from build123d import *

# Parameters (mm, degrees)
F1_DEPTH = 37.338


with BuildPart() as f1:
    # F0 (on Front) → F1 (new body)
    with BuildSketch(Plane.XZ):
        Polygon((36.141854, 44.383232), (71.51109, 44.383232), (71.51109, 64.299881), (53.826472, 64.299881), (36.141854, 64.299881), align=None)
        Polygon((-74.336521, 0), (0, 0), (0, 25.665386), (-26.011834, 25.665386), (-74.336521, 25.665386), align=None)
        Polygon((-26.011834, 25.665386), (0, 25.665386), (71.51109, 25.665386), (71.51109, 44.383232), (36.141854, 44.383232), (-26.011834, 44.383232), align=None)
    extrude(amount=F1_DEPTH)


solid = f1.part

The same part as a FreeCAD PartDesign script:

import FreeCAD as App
import Part
import Sketcher
Q = App.Units.Quantity


def add_polygon(sketch, points):
    """Adds a closed chain of lines whose ends are joined by coincident constraints."""
    first, n = sketch.GeometryCount, len(points)
    for a, b in zip(points, points[1:] + points[:1]):
        sketch.addGeometry(Part.LineSegment(App.Vector(*a, 0), App.Vector(*b, 0)), False)
    for i in range(n):
        sketch.addConstraint(Sketcher.Constraint("Coincident", first + i, 2, first + (i + 1) % n, 1))

doc = App.newDocument("Part")
body = doc.addObject("PartDesign::Body", "Body")

# Sketch on XZ plane
sketch1 = body.newObject("Sketcher::SketchObject", "Sketch")
sketch1.AttachmentSupport = (doc.getObject("XZ_Plane"), [""])
sketch1.MapMode = "FlatFace"
add_polygon(sketch1, [(72, 64), (36, 64), (36, 44), (-26, 44), (-26, 26), (-74, 26), (-74, 0), (0, 0), (0, 26), (72, 26)])  # lines 0-9
sketch1.addConstraint([
    Sketcher.Constraint("Horizontal", 0),
    Sketcher.Constraint("Vertical", 1),
    Sketcher.Constraint("Horizontal", 2),
    Sketcher.Constraint("Vertical", 3),
    Sketcher.Constraint("Horizontal", 4),
    Sketcher.Constraint("Vertical", 5),
    Sketcher.Constraint("Horizontal", 6),
    Sketcher.Constraint("Vertical", 7),
    Sketcher.Constraint("Horizontal", 8),
    Sketcher.Constraint("Vertical", 9),
    Sketcher.Constraint("Coincident", 6, 2, -1, 1),
    Sketcher.Constraint("Horizontal", 4, 2, 7, 2),
    Sketcher.Constraint("DistanceX", 2, 2, 2, 1, 62.153688),
    Sketcher.Constraint("DistanceX", 6, 1, 6, 2, 74.336521),
    Sketcher.Constraint("DistanceX", 8, 1, 8, 2, 71.51109),
    Sketcher.Constraint("DistanceY", 1, 2, 1, 1, 19.916649),
    Sketcher.Constraint("DistanceX", 0, 2, 0, 1, 35.369236),
    Sketcher.Constraint("DistanceY", 3, 2, 3, 1, 18.717846),
    Sketcher.Constraint("DistanceY", 5, 2, 5, 1, 25.665386),
])
pad1 = body.newObject("PartDesign::Pad", "Pad")
pad1.Profile = sketch1
pad1.Length = Q("1.47 in")

doc.recompute()
